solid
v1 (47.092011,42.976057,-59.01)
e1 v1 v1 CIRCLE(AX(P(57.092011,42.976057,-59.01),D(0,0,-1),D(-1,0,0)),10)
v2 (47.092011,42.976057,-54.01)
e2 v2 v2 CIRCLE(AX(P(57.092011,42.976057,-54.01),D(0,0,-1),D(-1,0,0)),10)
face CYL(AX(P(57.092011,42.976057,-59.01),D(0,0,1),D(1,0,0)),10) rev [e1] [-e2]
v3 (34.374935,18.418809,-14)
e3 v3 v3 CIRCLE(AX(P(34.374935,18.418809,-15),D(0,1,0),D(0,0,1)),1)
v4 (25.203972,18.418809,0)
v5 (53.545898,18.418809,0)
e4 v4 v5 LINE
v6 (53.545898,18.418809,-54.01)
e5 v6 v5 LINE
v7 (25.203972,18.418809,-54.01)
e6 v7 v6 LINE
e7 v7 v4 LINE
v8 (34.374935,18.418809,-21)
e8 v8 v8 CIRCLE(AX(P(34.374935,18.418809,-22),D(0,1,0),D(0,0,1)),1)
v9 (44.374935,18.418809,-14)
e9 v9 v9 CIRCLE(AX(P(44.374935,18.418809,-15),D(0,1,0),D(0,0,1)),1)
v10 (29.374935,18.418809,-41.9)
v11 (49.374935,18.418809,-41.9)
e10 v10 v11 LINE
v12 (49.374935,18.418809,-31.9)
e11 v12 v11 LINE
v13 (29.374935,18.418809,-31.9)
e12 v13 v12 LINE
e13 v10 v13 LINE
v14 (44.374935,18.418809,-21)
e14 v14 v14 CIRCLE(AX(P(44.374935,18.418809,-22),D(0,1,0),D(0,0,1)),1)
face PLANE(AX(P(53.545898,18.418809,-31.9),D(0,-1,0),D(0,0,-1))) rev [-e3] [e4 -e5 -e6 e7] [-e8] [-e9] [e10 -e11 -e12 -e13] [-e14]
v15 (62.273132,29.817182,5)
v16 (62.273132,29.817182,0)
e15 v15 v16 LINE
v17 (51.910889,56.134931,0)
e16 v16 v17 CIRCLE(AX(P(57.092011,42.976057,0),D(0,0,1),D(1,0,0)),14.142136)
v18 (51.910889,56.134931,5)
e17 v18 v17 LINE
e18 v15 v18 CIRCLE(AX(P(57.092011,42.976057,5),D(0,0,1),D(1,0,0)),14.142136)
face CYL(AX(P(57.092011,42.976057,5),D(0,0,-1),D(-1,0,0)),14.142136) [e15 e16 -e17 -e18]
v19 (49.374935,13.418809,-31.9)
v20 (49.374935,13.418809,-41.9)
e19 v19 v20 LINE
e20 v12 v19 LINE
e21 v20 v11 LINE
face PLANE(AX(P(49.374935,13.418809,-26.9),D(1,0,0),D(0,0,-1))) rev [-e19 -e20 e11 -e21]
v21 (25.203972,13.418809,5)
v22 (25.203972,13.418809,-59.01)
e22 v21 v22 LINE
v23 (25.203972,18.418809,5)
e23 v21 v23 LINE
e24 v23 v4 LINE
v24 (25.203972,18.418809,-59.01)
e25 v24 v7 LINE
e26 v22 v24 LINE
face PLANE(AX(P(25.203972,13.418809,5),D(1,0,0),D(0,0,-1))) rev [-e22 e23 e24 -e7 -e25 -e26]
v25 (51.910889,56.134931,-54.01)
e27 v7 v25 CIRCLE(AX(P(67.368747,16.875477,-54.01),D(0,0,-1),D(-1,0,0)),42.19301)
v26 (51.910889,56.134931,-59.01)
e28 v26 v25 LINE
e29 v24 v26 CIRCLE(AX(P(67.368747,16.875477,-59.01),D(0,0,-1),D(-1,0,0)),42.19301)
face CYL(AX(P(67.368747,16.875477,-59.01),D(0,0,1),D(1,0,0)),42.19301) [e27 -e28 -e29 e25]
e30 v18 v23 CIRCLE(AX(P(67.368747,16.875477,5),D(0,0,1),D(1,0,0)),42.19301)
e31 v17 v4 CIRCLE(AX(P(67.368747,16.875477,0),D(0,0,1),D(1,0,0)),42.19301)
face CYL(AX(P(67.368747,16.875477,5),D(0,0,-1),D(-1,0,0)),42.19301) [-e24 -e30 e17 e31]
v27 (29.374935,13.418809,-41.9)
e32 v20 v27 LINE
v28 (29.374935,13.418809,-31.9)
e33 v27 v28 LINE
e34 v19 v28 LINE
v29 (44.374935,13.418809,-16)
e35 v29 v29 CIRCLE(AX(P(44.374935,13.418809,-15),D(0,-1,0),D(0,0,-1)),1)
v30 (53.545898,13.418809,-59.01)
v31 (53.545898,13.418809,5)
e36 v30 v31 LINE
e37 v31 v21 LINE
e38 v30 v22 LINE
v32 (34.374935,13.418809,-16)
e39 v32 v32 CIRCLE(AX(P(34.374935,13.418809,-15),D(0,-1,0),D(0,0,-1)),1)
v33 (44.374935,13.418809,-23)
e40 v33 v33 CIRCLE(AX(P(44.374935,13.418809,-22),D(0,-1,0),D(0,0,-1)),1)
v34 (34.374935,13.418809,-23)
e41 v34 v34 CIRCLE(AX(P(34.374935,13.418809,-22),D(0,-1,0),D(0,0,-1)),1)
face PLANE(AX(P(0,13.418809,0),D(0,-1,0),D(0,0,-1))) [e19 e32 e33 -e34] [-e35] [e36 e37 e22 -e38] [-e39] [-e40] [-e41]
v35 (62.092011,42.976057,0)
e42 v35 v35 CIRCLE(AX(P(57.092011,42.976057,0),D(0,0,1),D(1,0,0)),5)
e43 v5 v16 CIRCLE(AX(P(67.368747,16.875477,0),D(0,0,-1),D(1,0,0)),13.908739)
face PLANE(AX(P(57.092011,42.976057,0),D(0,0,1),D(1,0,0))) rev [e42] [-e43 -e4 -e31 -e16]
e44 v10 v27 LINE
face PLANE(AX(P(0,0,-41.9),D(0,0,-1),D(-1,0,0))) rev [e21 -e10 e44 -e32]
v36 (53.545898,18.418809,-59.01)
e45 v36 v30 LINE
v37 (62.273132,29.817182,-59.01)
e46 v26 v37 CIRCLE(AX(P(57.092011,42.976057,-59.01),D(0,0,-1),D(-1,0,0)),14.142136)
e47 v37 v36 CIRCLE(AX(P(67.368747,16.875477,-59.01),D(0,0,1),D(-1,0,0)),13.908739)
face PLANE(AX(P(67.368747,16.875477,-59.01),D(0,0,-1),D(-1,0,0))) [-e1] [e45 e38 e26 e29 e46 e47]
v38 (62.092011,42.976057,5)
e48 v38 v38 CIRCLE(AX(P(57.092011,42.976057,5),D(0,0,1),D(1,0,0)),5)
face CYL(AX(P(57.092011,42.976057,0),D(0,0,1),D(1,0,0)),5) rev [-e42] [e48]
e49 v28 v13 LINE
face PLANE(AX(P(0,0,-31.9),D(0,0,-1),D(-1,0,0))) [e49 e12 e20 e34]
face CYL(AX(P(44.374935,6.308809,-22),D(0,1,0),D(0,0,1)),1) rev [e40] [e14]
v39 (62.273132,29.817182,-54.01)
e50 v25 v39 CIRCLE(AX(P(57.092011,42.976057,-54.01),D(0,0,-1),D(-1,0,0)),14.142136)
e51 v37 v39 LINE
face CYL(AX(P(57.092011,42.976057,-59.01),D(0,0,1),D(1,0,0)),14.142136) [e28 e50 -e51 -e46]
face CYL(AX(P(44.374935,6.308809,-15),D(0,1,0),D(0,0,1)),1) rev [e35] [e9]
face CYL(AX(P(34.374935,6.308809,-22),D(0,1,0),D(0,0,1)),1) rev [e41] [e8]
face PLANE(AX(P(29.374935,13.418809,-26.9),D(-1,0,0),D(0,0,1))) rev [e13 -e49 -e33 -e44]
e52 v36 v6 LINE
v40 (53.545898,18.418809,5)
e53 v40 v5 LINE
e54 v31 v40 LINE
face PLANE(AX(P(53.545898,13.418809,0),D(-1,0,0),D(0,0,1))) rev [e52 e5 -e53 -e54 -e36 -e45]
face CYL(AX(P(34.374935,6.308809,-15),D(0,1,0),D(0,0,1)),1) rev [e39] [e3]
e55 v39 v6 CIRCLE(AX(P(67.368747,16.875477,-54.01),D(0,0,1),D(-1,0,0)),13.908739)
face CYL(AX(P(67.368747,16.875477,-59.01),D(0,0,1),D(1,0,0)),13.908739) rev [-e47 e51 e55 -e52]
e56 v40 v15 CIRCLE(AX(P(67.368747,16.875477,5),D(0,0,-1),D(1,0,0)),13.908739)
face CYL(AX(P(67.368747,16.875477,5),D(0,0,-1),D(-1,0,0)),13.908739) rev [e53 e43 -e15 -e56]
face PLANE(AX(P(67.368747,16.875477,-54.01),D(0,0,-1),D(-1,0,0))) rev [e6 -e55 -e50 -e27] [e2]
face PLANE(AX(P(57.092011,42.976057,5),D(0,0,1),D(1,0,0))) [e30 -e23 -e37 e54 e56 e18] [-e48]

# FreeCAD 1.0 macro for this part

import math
import FreeCAD as App
import Part
import Sketcher
from FreeCAD import Vector

doc = App.newDocument("Part")
body = doc.addObject("PartDesign::Body", "Body")

# Sketch on XY plane
sketch1 = doc.addObject("Sketcher::SketchObject", "Sketch")
body.addObject(sketch1)
sketch1.AttachmentSupport = (doc.XY_Plane, [""])
sketch1.MapMode = "FlatFace"
sketch1.addGeometry(Part.LineSegment(Vector(25.203972, 18.418809, 0), Vector(53.545898, 18.418809, 0)), False)
sketch1.addGeometry(Part.ArcOfCircle(Part.Circle(Vector(67.368747, 16.875477, 0), Vector(0, 0, 1), 13.908739), math.radians(111.491342), math.radians(173.629266)), False)
sketch1.addGeometry(Part.ArcOfCircle(Part.Circle(Vector(57.092011, 42.976057, 0), Vector(0, 0, 1), 14.142136), math.radians(-68.508658), math.radians(111.491342)), False)
sketch1.addGeometry(Part.ArcOfCircle(Part.Circle(Vector(67.368747, 16.875477, 0), Vector(0, 0, 1), 42.19301), math.radians(111.491342), math.radians(177.903773)), False)
sketch1.addConstraint(Sketcher.Constraint("Coincident", 0, 2, 1, 2))
sketch1.addConstraint(Sketcher.Constraint("Tangent", 1, 1, 2, 1))
sketch1.addConstraint(Sketcher.Constraint("Tangent", 2, 2, 3, 1))
sketch1.addConstraint(Sketcher.Constraint("Coincident", 3, 2, 0, 1))
sketch1.addConstraint(Sketcher.Constraint("Horizontal", 0))
sketch1.addConstraint(Sketcher.Constraint("Coincident", 3, 3, 1, 3))
sketch1.addConstraint(Sketcher.Constraint("Radius", 1, 13.908739))
sketch1.addConstraint(Sketcher.Constraint("Radius", 3, 42.19301))
sketch1.addConstraint(Sketcher.Constraint("DistanceX", -1, 1, 0, 2, 53.545898))
sketch1.addConstraint(Sketcher.Constraint("DistanceX", 0, 1, 0, 2, 28.341926))
sketch1.addConstraint(Sketcher.Constraint("DistanceX", -1, 1, 2, 3, 57.092011))
sketch1.addConstraint(Sketcher.Constraint("DistanceY", -1, 1, 0, 2, 18.418809))
pad1 = doc.addObject("PartDesign::Pad", "Pad")
body.addObject(pad1)
pad1.Profile = sketch1
pad1.Length = 5

# Sketch on XY plane
sketch2 = doc.addObject("Sketcher::SketchObject", "Sketch001")
body.addObject(sketch2)
sketch2.AttachmentSupport = (doc.XY_Plane, [""])
sketch2.MapMode = "FlatFace"
sketch2.AttachmentOffset = App.Placement(Vector(0, 0, 5), App.Rotation())
sketch2.addGeometry(Part.Circle(Vector(57.092011, 42.976057, 0), Vector(0, 0, 1), 5), False)
sketch2.addConstraint(Sketcher.Constraint("Diameter", 0, 10.0))
sketch2.addConstraint(Sketcher.Constraint("DistanceX", -1, 1, 0, 3, 57.092011))
sketch2.addConstraint(Sketcher.Constraint("DistanceY", -1, 1, 0, 3, 42.976057))
pocket1 = doc.addObject("PartDesign::Pocket", "Pocket")
body.addObject(pocket1)
pocket1.Profile = sketch2
pocket1.Length = 5

# Sketch on XZ plane
sketch3 = doc.addObject("Sketcher::SketchObject", "Sketch002")
body.addObject(sketch3)
sketch3.AttachmentSupport = (doc.XZ_Plane, [""])
sketch3.MapMode = "FlatFace"
sketch3.AttachmentOffset = App.Placement(Vector(0, 0, -18.418809), App.Rotation())
sketch3.addGeometry(Part.LineSegment(Vector(25.203972, 5, 0), Vector(25.203972, 0, 0)), False)
sketch3.addGeometry(Part.LineSegment(Vector(25.203972, 0, 0), Vector(53.545898, 0, 0)), False)
sketch3.addGeometry(Part.LineSegment(Vector(53.545898, 0, 0), Vector(53.545898, 5, 0)), False)
sketch3.addGeometry(Part.LineSegment(Vector(53.545898, 5, 0), Vector(25.203972, 5, 0)), False)
sketch3.addConstraint(Sketcher.Constraint("Coincident", 0, 2, 1, 1))
sketch3.addConstraint(Sketcher.Constraint("Coincident", 1, 2, 2, 1))
sketch3.addConstraint(Sketcher.Constraint("Coincident", 2, 2, 3, 1))
sketch3.addConstraint(Sketcher.Constraint("Coincident", 3, 2, 0, 1))
sketch3.addConstraint(Sketcher.Constraint("Vertical", 0))
sketch3.addConstraint(Sketcher.Constraint("Horizontal", 1))
sketch3.addConstraint(Sketcher.Constraint("Vertical", 2))
sketch3.addConstraint(Sketcher.Constraint("Horizontal", 3))
sketch3.addConstraint(Sketcher.Constraint("PointOnObject", 0, 2, -1))
sketch3.addConstraint(Sketcher.Constraint("DistanceY", 0, 2, 0, 1, 5.0))
sketch3.addConstraint(Sketcher.Constraint("DistanceX", -1, 1, 1, 2, 53.545898))
sketch3.addConstraint(Sketcher.Constraint("DistanceX", 1, 1, 1, 2, 28.341926))
pad2 = doc.addObject("PartDesign::Pad", "Pad001")
body.addObject(pad2)
pad2.Profile = sketch3
pad2.Length = 5

# Sketch on XY plane
sketch4 = doc.addObject("Sketcher::SketchObject", "Sketch003")
body.addObject(sketch4)
sketch4.AttachmentSupport = (doc.XY_Plane, [""])
sketch4.MapMode = "FlatFace"
sketch4.addGeometry(Part.LineSegment(Vector(53.545898, 18.418809, 0), Vector(53.545898, 13.418809, 0)), False)
sketch4.addGeometry(Part.LineSegment(Vector(53.545898, 13.418809, 0), Vector(25.203972, 13.418809, 0)), False)
sketch4.addGeometry(Part.LineSegment(Vector(25.203972, 13.418809, 0), Vector(25.203972, 18.418809, 0)), False)
sketch4.addGeometry(Part.LineSegment(Vector(25.203972, 18.418809, 0), Vector(53.545898, 18.418809, 0)), False)
sketch4.addConstraint(Sketcher.Constraint("Coincident", 0, 2, 1, 1))
sketch4.addConstraint(Sketcher.Constraint("Coincident", 1, 2, 2, 1))
sketch4.addConstraint(Sketcher.Constraint("Coincident", 2, 2, 3, 1))
sketch4.addConstraint(Sketcher.Constraint("Coincident", 3, 2, 0, 1))
sketch4.addConstraint(Sketcher.Constraint("Vertical", 0))
sketch4.addConstraint(Sketcher.Constraint("Horizontal", 1))
sketch4.addConstraint(Sketcher.Constraint("Vertical", 2))
sketch4.addConstraint(Sketcher.Constraint("Horizontal", 3))
sketch4.addConstraint(Sketcher.Constraint("DistanceY", 0, 2, 0, 1, 5.0))
sketch4.addConstraint(Sketcher.Constraint("DistanceX", -1, 1, 0, 2, 53.545898))
sketch4.addConstraint(Sketcher.Constraint("DistanceX", 1, 2, 1, 1, 28.341926))
sketch4.addConstraint(Sketcher.Constraint("DistanceY", -1, 1, 0, 2, 13.418809))
pad3 = doc.addObject("PartDesign::Pad", "Pad002")
body.addObject(pad3)
pad3.Profile = sketch4
pad3.Length = 31.9
pad3.Reversed = True

# Sketch on XZ plane
sketch5 = doc.addObject("Sketcher::SketchObject", "Sketch004")
body.addObject(sketch5)
sketch5.AttachmentSupport = (doc.XZ_Plane, [""])
sketch5.MapMode = "FlatFace"
sketch5.AttachmentOffset = App.Placement(Vector(0, 0, -18.418809), App.Rotation())
sketch5.addGeometry(Part.LineSegment(Vector(29.374935, -31.9, 0), Vector(29.374935, -26.9, 0)), False)
sketch5.addGeometry(Part.LineSegment(Vector(29.374935, -26.9, 0), Vector(49.374935, -26.9, 0)), False)
sketch5.addGeometry(Part.LineSegment(Vector(49.374935, -26.9, 0), Vector(49.374935, -31.9, 0)), False)
sketch5.addGeometry(Part.LineSegment(Vector(49.374935, -31.9, 0), Vector(29.374935, -31.9, 0)), False)
sketch5.addConstraint(Sketcher.Constraint("Coincident", 0, 2, 1, 1))
sketch5.addConstraint(Sketcher.Constraint("Coincident", 1, 2, 2, 1))
sketch5.addConstraint(Sketcher.Constraint("Coincident", 2, 2, 3, 1))
sketch5.addConstraint(Sketcher.Constraint("Coincident", 3, 2, 0, 1))
sketch5.addConstraint(Sketcher.Constraint("Vertical", 0))
sketch5.addConstraint(Sketcher.Constraint("Horizontal", 1))
sketch5.addConstraint(Sketcher.Constraint("Vertical", 2))
sketch5.addConstraint(Sketcher.Constraint("Horizontal", 3))
sketch5.addConstraint(Sketcher.Constraint("DistanceX", 1, 1, 1, 2, 20.0))
sketch5.addConstraint(Sketcher.Constraint("DistanceY", 0, 1, 0, 2, 5.0))
sketch5.addConstraint(Sketcher.Constraint("DistanceY", 0, 2, -1, 1, 26.9))
sketch5.addConstraint(Sketcher.Constraint("DistanceX", -1, 1, 0, 2, 29.374935))
pocket2 = doc.addObject("PartDesign::Pocket", "Pocket001")
body.addObject(pocket2)
pocket2.Profile = sketch5
pocket2.Length = 5
pocket2.Reversed = True

# Sketch on XY plane
sketch6 = doc.addObject("Sketcher::SketchObject", "Sketch005")
body.addObject(sketch6)
sketch6.AttachmentSupport = (doc.XY_Plane, [""])
sketch6.MapMode = "FlatFace"
sketch6.AttachmentOffset = App.Placement(Vector(0, 0, -31.9), App.Rotation())
sketch6.addGeometry(Part.LineSegment(Vector(53.545898, 18.418809, 0), Vector(53.545898, 13.418809, 0)), False)
sketch6.addGeometry(Part.LineSegment(Vector(53.545898, 13.418809, 0), Vector(49.374935, 13.418809, 0)), False)
sketch6.addGeometry(Part.LineSegment(Vector(49.374935, 13.418809, 0), Vector(49.374935, 18.418809, 0)), False)
sketch6.addGeometry(Part.LineSegment(Vector(49.374935, 18.418809, 0), Vector(53.545898, 18.418809, 0)), False)
sketch6.addGeometry(Part.LineSegment(Vector(29.374935, 18.418809, 0), Vector(29.374935, 13.418809, 0)), False)
sketch6.addGeometry(Part.LineSegment(Vector(29.374935, 13.418809, 0), Vector(25.203972, 13.418809, 0)), False)
sketch6.addGeometry(Part.LineSegment(Vector(25.203972, 13.418809, 0), Vector(25.203972, 18.418809, 0)), False)
sketch6.addGeometry(Part.LineSegment(Vector(25.203972, 18.418809, 0), Vector(29.374935, 18.418809, 0)), False)
sketch6.addConstraint(Sketcher.Constraint("Coincident", 0, 2, 1, 1))
sketch6.addConstraint(Sketcher.Constraint("Coincident", 1, 2, 2, 1))
sketch6.addConstraint(Sketcher.Constraint("Coincident", 2, 2, 3, 1))
sketch6.addConstraint(Sketcher.Constraint("Coincident", 3, 2, 0, 1))
sketch6.addConstraint(Sketcher.Constraint("Coincident", 4, 2, 5, 1))
sketch6.addConstraint(Sketcher.Constraint("Coincident", 5, 2, 6, 1))
sketch6.addConstraint(Sketcher.Constraint("Coincident", 6, 2, 7, 1))
sketch6.addConstraint(Sketcher.Constraint("Coincident", 7, 2, 4, 1))
sketch6.addConstraint(Sketcher.Constraint("Vertical", 0))
sketch6.addConstraint(Sketcher.Constraint("Horizontal", 1))
sketch6.addConstraint(Sketcher.Constraint("Vertical", 2))
sketch6.addConstraint(Sketcher.Constraint("Horizontal", 3))
sketch6.addConstraint(Sketcher.Constraint("Vertical", 4))
sketch6.addConstraint(Sketcher.Constraint("Horizontal", 5))
sketch6.addConstraint(Sketcher.Constraint("Vertical", 6))
sketch6.addConstraint(Sketcher.Constraint("Horizontal", 7))
sketch6.addConstraint(Sketcher.Constraint("Horizontal", 1, 2, 4, 2))
sketch6.addConstraint(Sketcher.Constraint("Horizontal", 3, 2, 6, 2))
sketch6.addConstraint(Sketcher.Constraint("Equal", 3, 5))
sketch6.addConstraint(Sketcher.Constraint("DistanceY", 0, 2, 0, 1, 5.0))
sketch6.addConstraint(Sketcher.Constraint("DistanceX", 4, 2, 1, 2, 20.0))
sketch6.addConstraint(Sketcher.Constraint("DistanceX", -1, 1, 0, 2, 53.545898))
sketch6.addConstraint(Sketcher.Constraint("DistanceX", 1, 2, 1, 1, 4.170963))
sketch6.addConstraint(Sketcher.Constraint("DistanceY", -1, 1, 0, 2, 13.418809))
pad4 = doc.addObject("PartDesign::Pad", "Pad003")
body.addObject(pad4)
pad4.Profile = sketch6
pad4.Length = 10
pad4.Reversed = True

# Sketch on XY plane
sketch7 = doc.addObject("Sketcher::SketchObject", "Sketch006")
body.addObject(sketch7)
sketch7.AttachmentSupport = (doc.XY_Plane, [""])
sketch7.MapMode = "FlatFace"
sketch7.AttachmentOffset = App.Placement(Vector(0, 0, -26.9), App.Rotation())
sketch7.addGeometry(Part.LineSegment(Vector(49.374935, 18.418809, 0), Vector(49.374935, 13.418809, 0)), False)
sketch7.addGeometry(Part.LineSegment(Vector(49.374935, 13.418809, 0), Vector(29.374935, 13.418809, 0)), False)
sketch7.addGeometry(Part.LineSegment(Vector(29.374935, 13.418809, 0), Vector(29.374935, 18.418809, 0)), False)
sketch7.addGeometry(Part.LineSegment(Vector(29.374935, 18.418809, 0), Vector(49.374935, 18.418809, 0)), False)
sketch7.addConstraint(Sketcher.Constraint("Coincident", 0, 2, 1, 1))
sketch7.addConstraint(Sketcher.Constraint("Coincident", 1, 2, 2, 1))
sketch7.addConstraint(Sketcher.Constraint("Coincident", 2, 2, 3, 1))
sketch7.addConstraint(Sketcher.Constraint("Coincident", 3, 2, 0, 1))
sketch7.addConstraint(Sketcher.Constraint("Vertical", 0))
sketch7.addConstraint(Sketcher.Constraint("Horizontal", 1))
sketch7.addConstraint(Sketcher.Constraint("Vertical", 2))
sketch7.addConstraint(Sketcher.Constraint("Horizontal", 3))
sketch7.addConstraint(Sketcher.Constraint("DistanceX", 1, 2, 1, 1, 20.0))
sketch7.addConstraint(Sketcher.Constraint("DistanceY", 0, 2, 0, 1, 5.0))
sketch7.addConstraint(Sketcher.Constraint("DistanceY", -1, 1, 0, 2, 13.418809))
sketch7.addConstraint(Sketcher.Constraint("DistanceX", -1, 1, 0, 2, 49.374935))
pad5 = doc.addObject("PartDesign::Pad", "Pad004")
body.addObject(pad5)
pad5.Profile = sketch7
pad5.Length = 5
pad5.Reversed = True

# Sketch on XY plane
sketch8 = doc.addObject("Sketcher::SketchObject", "Sketch007")
body.addObject(sketch8)
sketch8.AttachmentSupport = (doc.XY_Plane, [""])
sketch8.MapMode = "FlatFace"
sketch8.AttachmentOffset = App.Placement(Vector(0, 0, -41.9), App.Rotation())
sketch8.addGeometry(Part.LineSegment(Vector(53.545898, 18.418809, 0), Vector(53.545898, 13.418809, 0)), False)
sketch8.addGeometry(Part.LineSegment(Vector(53.545898, 13.418809, 0), Vector(25.203972, 13.418809, 0)), False)
sketch8.addGeometry(Part.LineSegment(Vector(25.203972, 13.418809, 0), Vector(25.203972, 18.418809, 0)), False)
sketch8.addGeometry(Part.LineSegment(Vector(25.203972, 18.418809, 0), Vector(53.545898, 18.418809, 0)), False)
sketch8.addConstraint(Sketcher.Constraint("Coincident", 0, 2, 1, 1))
sketch8.addConstraint(Sketcher.Constraint("Coincident", 1, 2, 2, 1))
sketch8.addConstraint(Sketcher.Constraint("Coincident", 2, 2, 3, 1))
sketch8.addConstraint(Sketcher.Constraint("Coincident", 3, 2, 0, 1))
sketch8.addConstraint(Sketcher.Constraint("Vertical", 0))
sketch8.addConstraint(Sketcher.Constraint("Horizontal", 1))
sketch8.addConstraint(Sketcher.Constraint("Vertical", 2))
sketch8.addConstraint(Sketcher.Constraint("Horizontal", 3))
sketch8.addConstraint(Sketcher.Constraint("DistanceY", 0, 2, 0, 1, 5.0))
sketch8.addConstraint(Sketcher.Constraint("DistanceX", -1, 1, 0, 2, 53.545898))
sketch8.addConstraint(Sketcher.Constraint("DistanceX", 1, 2, 1, 1, 28.341926))
sketch8.addConstraint(Sketcher.Constraint("DistanceY", -1, 1, 0, 2, 13.418809))
pad6 = doc.addObject("PartDesign::Pad", "Pad005")
body.addObject(pad6)
pad6.Profile = sketch8
pad6.Length = 12.11
pad6.Reversed = True

# Sketch on XZ plane
sketch9 = doc.addObject("Sketcher::SketchObject", "Sketch008")
body.addObject(sketch9)
sketch9.AttachmentSupport = (doc.XZ_Plane, [""])
sketch9.MapMode = "FlatFace"
sketch9.AttachmentOffset = App.Placement(Vector(0, 0, -18.418809), App.Rotation())
sketch9.addGeometry(Part.Circle(Vector(34.374935, -22, 0), Vector(0, 0, 1), 1), False)
sketch9.addGeometry(Part.Circle(Vector(44.374935, -22, 0), Vector(0, 0, 1), 1), False)
sketch9.addGeometry(Part.Circle(Vector(34.374935, -15, 0), Vector(0, 0, 1), 1), False)
sketch9.addGeometry(Part.Circle(Vector(44.374935, -15, 0), Vector(0, 0, 1), 1), False)
sketch9.addConstraint(Sketcher.Constraint("Equal", 0, 1))
sketch9.addConstraint(Sketcher.Constraint("Equal", 1, 2))
sketch9.addConstraint(Sketcher.Constraint("Equal", 2, 3))
sketch9.addConstraint(Sketcher.Constraint("Horizontal", 0, 3, 1, 3))
sketch9.addConstraint(Sketcher.Constraint("Horizontal", 2, 3, 3, 3))
sketch9.addConstraint(Sketcher.Constraint("Vertical", 0, 3, 2, 3))
sketch9.addConstraint(Sketcher.Constraint("Vertical", 1, 3, 3, 3))
sketch9.addConstraint(Sketcher.Constraint("Diameter", 0, 2.0))
sketch9.addConstraint(Sketcher.Constraint("DistanceY", 0, 3, -1, 1, 22.0))
sketch9.addConstraint(Sketcher.Constraint("DistanceY", 2, 3, -1, 1, 15.0))
sketch9.addConstraint(Sketcher.Constraint("DistanceX", 0, 3, 1, 3, 10.0))
sketch9.addConstraint(Sketcher.Constraint("DistanceX", -1, 1, 0, 3, 34.374935))
pocket3 = doc.addObject("PartDesign::Pocket", "Pocket002")
body.addObject(pocket3)
pocket3.Profile = sketch9
pocket3.Length = 12.11
pocket3.Reversed = True

# Sketch on XY plane
sketch10 = doc.addObject("Sketcher::SketchObject", "Sketch009")
body.addObject(sketch10)
sketch10.AttachmentSupport = (doc.XY_Plane, [""])
sketch10.MapMode = "FlatFace"
sketch10.AttachmentOffset = App.Placement(Vector(0, 0, -59.01), App.Rotation())
sketch10.addGeometry(Part.LineSegment(Vector(53.545898, 18.418809, 0), Vector(53.545898, 13.418809, 0)), False)
sketch10.addGeometry(Part.LineSegment(Vector(53.545898, 13.418809, 0), Vector(25.203972, 13.418809, 0)), False)
sketch10.addGeometry(Part.LineSegment(Vector(25.203972, 13.418809, 0), Vector(25.203972, 18.418809, 0)), False)
sketch10.addGeometry(Part.ArcOfCircle(Part.Circle(Vector(67.368747, 16.875477, 0), Vector(0, 0, 1), 42.19301), math.radians(111.491342), math.radians(177.903773)), False)
sketch10.addGeometry(Part.ArcOfCircle(Part.Circle(Vector(57.092011, 42.976057, 0), Vector(0, 0, 1), 14.142136), math.radians(-68.508658), math.radians(111.491342)), False)
sketch10.addGeometry(Part.ArcOfCircle(Part.Circle(Vector(67.368747, 16.875477, 0), Vector(0, 0, 1), 13.908739), math.radians(111.491342), math.radians(173.629266)), False)
sketch10.addGeometry(Part.Circle(Vector(57.092011, 42.976057, 0), Vector(0, 0, 1), 10), False)
sketch10.addConstraint(Sketcher.Constraint("Coincident", 0, 2, 1, 1))
sketch10.addConstraint(Sketcher.Constraint("Coincident", 1, 2, 2, 1))
sketch10.addConstraint(Sketcher.Constraint("Coincident", 2, 2, 3, 2))
sketch10.addConstraint(Sketcher.Constraint("Tangent", 3, 1, 4, 2))
sketch10.addConstraint(Sketcher.Constraint("Tangent", 4, 1, 5, 1))
sketch10.addConstraint(Sketcher.Constraint("Coincident", 5, 2, 0, 1))
sketch10.addConstraint(Sketcher.Constraint("Vertical", 0))
sketch10.addConstraint(Sketcher.Constraint("Horizontal", 1))
sketch10.addConstraint(Sketcher.Constraint("Vertical", 2))
sketch10.addConstraint(Sketcher.Constraint("Coincident", 5, 3, 3, 3))
sketch10.addConstraint(Sketcher.Constraint("Coincident", 6, 3, 4, 3))
sketch10.addConstraint(Sketcher.Constraint("Horizontal", 2, 2, 5, 2))
sketch10.addConstraint(Sketcher.Constraint("Diameter", 6, 20.0))
sketch10.addConstraint(Sketcher.Constraint("DistanceY", 0, 2, 0, 1, 5.0))
sketch10.addConstraint(Sketcher.Constraint("Radius", 3, 42.19301))
sketch10.addConstraint(Sketcher.Constraint("Radius", 5, 13.908739))
sketch10.addConstraint(Sketcher.Constraint("DistanceX", -1, 1, 0, 2, 53.545898))
sketch10.addConstraint(Sketcher.Constraint("DistanceX", 1, 2, 1, 1, 28.341926))
sketch10.addConstraint(Sketcher.Constraint("DistanceX", -1, 1, 4, 3, 57.092011))
sketch10.addConstraint(Sketcher.Constraint("DistanceY", -1, 1, 0, 2, 13.418809))
pad7 = doc.addObject("PartDesign::Pad", "Pad006")
body.addObject(pad7)
pad7.Profile = sketch10
pad7.Length = 5

doc.recompute()
